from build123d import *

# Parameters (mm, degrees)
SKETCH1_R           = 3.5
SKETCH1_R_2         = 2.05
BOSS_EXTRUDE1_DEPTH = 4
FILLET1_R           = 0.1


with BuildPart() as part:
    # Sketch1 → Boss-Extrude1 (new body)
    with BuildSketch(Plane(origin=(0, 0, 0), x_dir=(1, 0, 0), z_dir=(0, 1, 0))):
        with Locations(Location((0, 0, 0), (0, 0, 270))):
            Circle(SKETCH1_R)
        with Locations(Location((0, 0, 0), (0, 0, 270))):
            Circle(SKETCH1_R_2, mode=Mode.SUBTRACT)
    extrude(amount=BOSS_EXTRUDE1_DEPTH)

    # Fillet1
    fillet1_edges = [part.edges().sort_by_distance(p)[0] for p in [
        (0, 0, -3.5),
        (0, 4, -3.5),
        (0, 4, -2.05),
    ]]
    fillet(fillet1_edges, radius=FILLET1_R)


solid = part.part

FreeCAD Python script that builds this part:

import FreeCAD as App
import Part
import Sketcher

V = App.Vector


def edges_at(feature, points):
    """Names of the edges that pass closest to the given points."""
    edges = feature.Shape.Edges
    near = lambda p: min(range(len(edges)), key=lambda i: edges[i].distToShape(Part.Vertex(*p))[0])
    return sorted({f"Edge{near(p) + 1}" for p in points})

doc = App.newDocument("Part")
params = doc.addObject("Spreadsheet::Sheet", "Params")
for row, (alias, value) in enumerate([
    ("sketch1_diameter", "7 mm"),
    ("sketch1_diameter2", "4.1 mm"),
    ("pad1_length", "4 mm"),
    ("fillet_radius", "0.1 mm"),
], start=1):
    params.set(f"A{row}", alias)
    params.set(f"B{row}", "=" + value)
    params.setAlias(f"B{row}", alias)

body = doc.addObject("PartDesign::Body", "Body")

sketch1 = body.newObject("Sketcher::SketchObject", "Sketch")
sketch1.AttachmentSupport = (doc.getObject("XZ_Plane"), [""])
sketch1.MapMode = "FlatFace"
sketch1.addGeometry([
    Part.Circle(V(0, 0, 0), V(0, 0, 1), 3.5),
    Part.Circle(V(0, 0, 0), V(0, 0, 1), 2),
], False)
sketch1.addConstraint([
    Sketcher.Constraint("Coincident", 0, 3, -1, 1),
    Sketcher.Constraint("Coincident", 1, 3, -1, 1),
    Sketcher.Constraint("Diameter", 0, 7.0),
    Sketcher.Constraint("Diameter", 1, 4.1),
])
sketch1.setExpression("Constraints[2]", "Params.sketch1_diameter")
sketch1.setExpression("Constraints[3]", "Params.sketch1_diameter2")
pad1 = body.newObject("PartDesign::Pad", "Pad")
pad1.Profile = sketch1
pad1.setExpression("Length", "Params.pad1_length")
pad1.Reversed = True
doc.recompute()

fillet = body.newObject("PartDesign::Fillet", "Fillet")
fillet.Base = (pad1, edges_at(pad1, [(0, 0, -3.5), (0, 4, -3.5), (0, 4, -2.05)]))
fillet.setExpression("Radius", "Params.fillet_radius")

doc.recompute()
